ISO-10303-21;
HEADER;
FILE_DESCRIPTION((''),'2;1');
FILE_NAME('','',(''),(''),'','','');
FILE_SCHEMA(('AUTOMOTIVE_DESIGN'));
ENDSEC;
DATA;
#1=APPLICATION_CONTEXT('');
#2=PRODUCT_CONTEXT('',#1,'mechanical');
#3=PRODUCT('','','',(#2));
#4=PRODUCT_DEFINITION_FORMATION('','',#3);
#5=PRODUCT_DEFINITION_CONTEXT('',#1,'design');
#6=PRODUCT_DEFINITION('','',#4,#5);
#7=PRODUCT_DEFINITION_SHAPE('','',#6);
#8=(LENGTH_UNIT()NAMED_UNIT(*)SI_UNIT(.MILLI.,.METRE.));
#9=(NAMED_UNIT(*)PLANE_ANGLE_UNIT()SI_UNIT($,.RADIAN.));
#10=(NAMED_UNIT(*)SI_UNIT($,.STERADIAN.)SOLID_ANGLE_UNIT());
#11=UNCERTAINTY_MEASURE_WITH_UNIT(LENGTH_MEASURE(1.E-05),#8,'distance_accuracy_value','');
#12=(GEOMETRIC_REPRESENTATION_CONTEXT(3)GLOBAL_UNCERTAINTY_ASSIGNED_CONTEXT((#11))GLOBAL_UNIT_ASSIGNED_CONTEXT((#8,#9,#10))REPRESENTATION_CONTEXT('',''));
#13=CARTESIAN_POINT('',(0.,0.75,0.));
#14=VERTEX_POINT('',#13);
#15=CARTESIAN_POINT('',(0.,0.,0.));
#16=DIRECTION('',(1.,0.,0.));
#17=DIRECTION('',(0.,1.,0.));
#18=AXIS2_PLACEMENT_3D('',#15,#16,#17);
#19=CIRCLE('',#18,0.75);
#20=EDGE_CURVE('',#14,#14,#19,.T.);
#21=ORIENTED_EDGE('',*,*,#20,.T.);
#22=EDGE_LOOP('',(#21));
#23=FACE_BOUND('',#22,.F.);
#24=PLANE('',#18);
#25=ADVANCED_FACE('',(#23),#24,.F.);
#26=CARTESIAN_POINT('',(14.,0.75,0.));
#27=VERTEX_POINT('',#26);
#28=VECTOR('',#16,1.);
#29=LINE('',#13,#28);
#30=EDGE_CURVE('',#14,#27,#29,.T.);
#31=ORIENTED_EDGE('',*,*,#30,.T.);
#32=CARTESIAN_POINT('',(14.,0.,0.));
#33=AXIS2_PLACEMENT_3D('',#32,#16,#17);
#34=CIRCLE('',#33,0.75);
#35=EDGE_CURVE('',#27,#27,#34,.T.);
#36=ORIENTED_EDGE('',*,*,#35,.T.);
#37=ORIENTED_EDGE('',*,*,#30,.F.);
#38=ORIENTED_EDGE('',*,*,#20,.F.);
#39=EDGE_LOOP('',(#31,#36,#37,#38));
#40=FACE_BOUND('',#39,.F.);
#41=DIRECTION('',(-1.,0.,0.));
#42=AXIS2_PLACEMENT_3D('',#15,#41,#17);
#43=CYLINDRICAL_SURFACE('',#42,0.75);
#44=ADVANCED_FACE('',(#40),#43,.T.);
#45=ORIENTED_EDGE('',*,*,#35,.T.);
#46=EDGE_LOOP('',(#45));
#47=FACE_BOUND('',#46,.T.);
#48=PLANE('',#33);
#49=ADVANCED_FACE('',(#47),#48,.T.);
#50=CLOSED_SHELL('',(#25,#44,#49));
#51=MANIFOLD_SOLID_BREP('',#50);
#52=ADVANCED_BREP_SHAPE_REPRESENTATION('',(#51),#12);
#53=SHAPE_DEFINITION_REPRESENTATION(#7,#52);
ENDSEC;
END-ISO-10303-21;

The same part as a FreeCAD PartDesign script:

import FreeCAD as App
import Part
import Sketcher

doc = App.newDocument("Part")
body = doc.addObject("PartDesign::Body", "Body")

# Sketch on YZ plane
sketch1 = doc.addObject("Sketcher::SketchObject", "Sketch")
body.addObject(sketch1)
sketch1.AttachmentSupport = (doc.YZ_Plane, [""])
sketch1.MapMode = "FlatFace"
sketch1.addGeometry(Part.Circle(App.Vector(0, 0, 0), App.Vector(0, 0, 1), 0.8), False)
sketch1.addConstraint(Sketcher.Constraint("Coincident", 0, 3, -1, 1))
sketch1.addConstraint(Sketcher.Constraint("Diameter", 0, 1.5))
pad1 = doc.addObject("PartDesign::Pad", "Pad")
body.addObject(pad1)
pad1.Profile = sketch1
pad1.Length = 14

doc.recompute()
